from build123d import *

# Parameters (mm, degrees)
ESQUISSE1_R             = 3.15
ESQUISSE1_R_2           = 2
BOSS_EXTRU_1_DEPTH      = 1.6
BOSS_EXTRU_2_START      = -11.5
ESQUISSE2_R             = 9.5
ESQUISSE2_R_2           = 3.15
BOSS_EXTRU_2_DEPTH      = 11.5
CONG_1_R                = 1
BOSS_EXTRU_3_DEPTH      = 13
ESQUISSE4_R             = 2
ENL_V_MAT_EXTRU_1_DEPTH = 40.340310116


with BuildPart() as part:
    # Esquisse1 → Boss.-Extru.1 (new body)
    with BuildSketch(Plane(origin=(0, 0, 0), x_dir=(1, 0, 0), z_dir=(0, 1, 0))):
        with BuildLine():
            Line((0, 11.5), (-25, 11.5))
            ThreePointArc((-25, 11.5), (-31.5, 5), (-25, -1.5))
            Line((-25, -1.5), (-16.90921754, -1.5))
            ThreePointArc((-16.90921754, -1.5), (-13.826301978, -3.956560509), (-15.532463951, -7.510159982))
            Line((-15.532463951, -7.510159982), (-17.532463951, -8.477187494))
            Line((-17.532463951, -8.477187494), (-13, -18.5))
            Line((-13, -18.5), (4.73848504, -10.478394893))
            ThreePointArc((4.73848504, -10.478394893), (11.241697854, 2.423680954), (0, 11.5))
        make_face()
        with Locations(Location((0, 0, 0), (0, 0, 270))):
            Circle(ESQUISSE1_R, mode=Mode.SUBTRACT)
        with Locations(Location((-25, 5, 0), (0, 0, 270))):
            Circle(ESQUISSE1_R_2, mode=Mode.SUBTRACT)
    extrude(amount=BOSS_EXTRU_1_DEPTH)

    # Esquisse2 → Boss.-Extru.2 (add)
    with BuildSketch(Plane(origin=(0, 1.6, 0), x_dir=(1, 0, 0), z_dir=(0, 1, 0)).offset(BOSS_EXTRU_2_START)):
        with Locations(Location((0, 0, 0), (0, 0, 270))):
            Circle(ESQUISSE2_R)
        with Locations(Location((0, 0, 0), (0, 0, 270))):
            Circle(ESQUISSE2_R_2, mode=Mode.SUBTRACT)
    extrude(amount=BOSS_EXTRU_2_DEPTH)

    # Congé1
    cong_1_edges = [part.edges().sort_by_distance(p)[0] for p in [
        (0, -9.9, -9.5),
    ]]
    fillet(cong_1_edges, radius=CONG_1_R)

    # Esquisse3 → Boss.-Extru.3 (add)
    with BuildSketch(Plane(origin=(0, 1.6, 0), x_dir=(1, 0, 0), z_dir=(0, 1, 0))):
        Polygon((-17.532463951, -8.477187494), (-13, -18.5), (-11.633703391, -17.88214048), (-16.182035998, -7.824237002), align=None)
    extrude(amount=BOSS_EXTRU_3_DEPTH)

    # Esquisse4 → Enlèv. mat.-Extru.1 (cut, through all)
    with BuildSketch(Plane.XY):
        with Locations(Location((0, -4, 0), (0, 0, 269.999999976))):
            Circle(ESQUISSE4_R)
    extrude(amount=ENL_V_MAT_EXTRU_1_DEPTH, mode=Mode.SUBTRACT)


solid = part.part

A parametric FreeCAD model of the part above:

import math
import FreeCAD as App
import Part
import Sketcher

V = App.Vector


def edges_at(feature, points):
    """Names of the edges that pass closest to the given points."""
    edges = feature.Shape.Edges
    near = lambda p: min(range(len(edges)), key=lambda i: edges[i].distToShape(Part.Vertex(*p))[0])
    return sorted({f"Edge{near(p) + 1}" for p in points})

doc = App.newDocument("Part")
params = doc.addObject("Spreadsheet::Sheet", "Params")
for row, (alias, value) in enumerate([
    ("sketch1_diameter", "4 mm"),
    ("sketch1_diameter2", "6.3 mm"),
    ("sketch1_radius", "6.5 mm"),
    ("sketch1_radius2", "11.5 mm"),
    ("sketch1_width", "25 mm"),
    ("pad1_length", "1.6 mm"),
    ("sketch2_diameter", "19 mm"),
    ("sketch2_diameter2", "6.3 mm"),
    ("pad2_length", "11.5 mm"),
    ("fillet_radius", "1 mm"),
    ("sketch3_length", "11 mm"),
    ("sketch3_length2", "1.5 mm"),
    ("pad3_length", "13 mm"),
    ("sketch4_diameter", "4 mm"),
], start=1):
    params.set(f"A{row}", alias)
    params.set(f"B{row}", "=" + value)
    params.setAlias(f"B{row}", alias)

body = doc.addObject("PartDesign::Body", "Body")

# Sketch on XZ plane
sketch1 = body.newObject("Sketcher::SketchObject", "Sketch")
sketch1.AttachmentSupport = (doc.getObject("XZ_Plane"), [""])
sketch1.MapMode = "FlatFace"
sketch1.addGeometry(Part.LineSegment(V(0, -11.5, 0), V(-25, -11.5, 0)), False)
sketch1.addGeometry(Part.ArcOfCircle(Part.Circle(V(-25, -5, 0), V(0, 0, 1), 6.5), math.radians(90), math.radians(270)), False)
sketch1.addGeometry(Part.LineSegment(V(-25, 1.5, 0), V(-16.9, 1.5, 0)), False)
sketch1.addGeometry(Part.ArcOfCircle(Part.Circle(V(-16.9, 4.7, 0), V(0, 0, 1), 3.2), math.radians(-90), math.radians(64)), False)
sketch1.addGeometry(Part.LineSegment(V(-15.5, 7.5, 0), V(-17.5, 8.5, 0)), False)
sketch1.addGeometry(Part.LineSegment(V(-17.5, 8.5, 0), V(-13, 18.5, 0)), False)
sketch1.addGeometry(Part.LineSegment(V(-13, 18.5, 0), V(4.7, 10.5, 0)), False)
sketch1.addGeometry(Part.ArcOfCircle(Part.Circle(V(0, 0, 0), V(0, 0, 1), 11.5), math.radians(-90), math.radians(66)), False)
sketch1.addGeometry(Part.Circle(V(0, 0, 0), V(0, 0, 1), 3.1), False)
sketch1.addGeometry(Part.Circle(V(-25, -5, 0), V(0, 0, 1), 2), False)
sketch1.addConstraint(Sketcher.Constraint("Tangent", 0, 2, 1, 2))
sketch1.addConstraint(Sketcher.Constraint("Tangent", 1, 1, 2, 1))
sketch1.addConstraint(Sketcher.Constraint("Tangent", 2, 2, 3, 1))
sketch1.addConstraint(Sketcher.Constraint("Tangent", 3, 2, 4, 1))
sketch1.addConstraint(Sketcher.Constraint("Coincident", 4, 2, 5, 1))
sketch1.addConstraint(Sketcher.Constraint("Coincident", 5, 2, 6, 1))
sketch1.addConstraint(Sketcher.Constraint("Tangent", 6, 2, 7, 2))
sketch1.addConstraint(Sketcher.Constraint("Tangent", 7, 1, 0, 1))
sketch1.addConstraint(Sketcher.Constraint("Horizontal", 0))
sketch1.addConstraint(Sketcher.Constraint("Horizontal", 2))
sketch1.addConstraint(Sketcher.Constraint("Coincident", 7, 3, -1, 1))
sketch1.addConstraint(Sketcher.Constraint("Coincident", 8, 3, -1, 1))
sketch1.addConstraint(Sketcher.Constraint("Coincident", 9, 3, 1, 3))
sketch1.addConstraint(Sketcher.Constraint("Perpendicular", 5, 6))
sketch1.addConstraint(Sketcher.Constraint("Diameter", 9, 4.0))
sketch1.addConstraint(Sketcher.Constraint("Diameter", 8, 6.3))
sketch1.addConstraint(Sketcher.Constraint("Radius", 1, 6.5))
sketch1.addConstraint(Sketcher.Constraint("Radius", 7, 11.5))
sketch1.addConstraint(Sketcher.Constraint("DistanceX", 0, 2, 0, 1, 25.0))
sketch1.addConstraint(Sketcher.Constraint("Distance", 5, 11.0))
sketch1.addConstraint(Sketcher.Constraint("DistanceX", 5, 2, -1, 1, 13.0))
sketch1.addConstraint(Sketcher.Constraint("DistanceX", 4, 2, 3, 2, 2.0))
sketch1.addConstraint(Sketcher.Constraint("DistanceY", 2, 2, 5, 2, 17.0))
sketch1.addConstraint(Sketcher.Constraint("Radius", 3, 3.162767))
sketch1.setExpression("Constraints[14]", "Params.sketch1_diameter")
sketch1.setExpression("Constraints[15]", "Params.sketch1_diameter2")
sketch1.setExpression("Constraints[16]", "Params.sketch1_radius")
sketch1.setExpression("Constraints[17]", "Params.sketch1_radius2")
sketch1.setExpression("Constraints[18]", "Params.sketch1_width")
pad1 = body.newObject("PartDesign::Pad", "Pad")
pad1.Profile = sketch1
pad1.setExpression("Length", "Params.pad1_length")
pad1.Reversed = True

# Sketch on XZ plane
sketch2 = body.newObject("Sketcher::SketchObject", "Sketch001")
sketch2.AttachmentSupport = (doc.getObject("XZ_Plane"), [""])
sketch2.MapMode = "FlatFace"
sketch2.AttachmentOffset = App.Placement(V(0, 0, 9.9), App.Rotation())
sketch2.addGeometry(Part.Circle(V(0, 0, 0), V(0, 0, 1), 9.5), False)
sketch2.addGeometry(Part.Circle(V(0, 0, 0), V(0, 0, 1), 3.1), False)
sketch2.addConstraint(Sketcher.Constraint("Coincident", 0, 3, -1, 1))
sketch2.addConstraint(Sketcher.Constraint("Coincident", 1, 3, -1, 1))
sketch2.addConstraint(Sketcher.Constraint("Diameter", 0, 19.0))
sketch2.addConstraint(Sketcher.Constraint("Diameter", 1, 6.3))
sketch2.setExpression("Constraints[2]", "Params.sketch2_diameter")
sketch2.setExpression("Constraints[3]", "Params.sketch2_diameter2")
pad2 = body.newObject("PartDesign::Pad", "Pad001")
pad2.Profile = sketch2
pad2.setExpression("Length", "Params.pad2_length")
pad2.Reversed = True
doc.recompute()

fillet = body.newObject("PartDesign::Fillet", "Fillet")
fillet.Base = (pad2, edges_at(pad2, [(0, -9.9, -9.5)]))
fillet.setExpression("Radius", "Params.fillet_radius")

# Sketch on XZ plane
sketch3 = body.newObject("Sketcher::SketchObject", "Sketch002")
sketch3.AttachmentSupport = (doc.getObject("XZ_Plane"), [""])
sketch3.MapMode = "FlatFace"
sketch3.AttachmentOffset = App.Placement(V(0, 0, -1.6), App.Rotation())
sketch3.addGeometry(Part.LineSegment(V(-17.5, 8.5, 0), V(-13, 18.5, 0)), False)
sketch3.addGeometry(Part.LineSegment(V(-13, 18.5, 0), V(-11.6, 17.9, 0)), False)
sketch3.addGeometry(Part.LineSegment(V(-11.6, 17.9, 0), V(-16.2, 7.8, 0)), False)
sketch3.addGeometry(Part.LineSegment(V(-16.2, 7.8, 0), V(-17.5, 8.5, 0)), False)
sketch3.addConstraint(Sketcher.Constraint("Coincident", 0, 2, 1, 1))
sketch3.addConstraint(Sketcher.Constraint("Coincident", 1, 2, 2, 1))
sketch3.addConstraint(Sketcher.Constraint("Coincident", 2, 2, 3, 1))
sketch3.addConstraint(Sketcher.Constraint("Coincident", 3, 2, 0, 1))
sketch3.addConstraint(Sketcher.Constraint("Perpendicular", 0, 1))
sketch3.addConstraint(Sketcher.Constraint("Perpendicular", 1, 2))
sketch3.addConstraint(Sketcher.Constraint("Distance", 0, 11.0))
sketch3.addConstraint(Sketcher.Constraint("DistanceX", 0, 2, -1, 1, 13.0))
sketch3.addConstraint(Sketcher.Constraint("Distance", 3, 1.5))
sketch3.addConstraint(Sketcher.Constraint("DistanceY", -1, 1, 0, 2, 18.5))
sketch3.addConstraint(Sketcher.Constraint("DistanceY", -1, 1, 1, 2, 17.88214))
sketch3.addConstraint(Sketcher.Constraint("DistanceY", 2, 2, 3, 2, 0.65295))
sketch3.setExpression("Constraints[6]", "Params.sketch3_length")
sketch3.setExpression("Constraints[8]", "Params.sketch3_length2")
pad3 = body.newObject("PartDesign::Pad", "Pad002")
pad3.Profile = sketch3
pad3.setExpression("Length", "Params.pad3_length")
pad3.Reversed = True

# Sketch on XY plane
sketch4 = body.newObject("Sketcher::SketchObject", "Sketch003")
sketch4.AttachmentSupport = (doc.getObject("XY_Plane"), [""])
sketch4.MapMode = "FlatFace"
sketch4.addGeometry(Part.Circle(V(0, -4, 0), V(0, 0, 1), 2), False)
sketch4.addConstraint(Sketcher.Constraint("PointOnObject", 0, 3, -2))
sketch4.addConstraint(Sketcher.Constraint("Diameter", 0, 4.0))
sketch4.addConstraint(Sketcher.Constraint("DistanceY", 0, 3, -1, 1, 4.0))
sketch4.setExpression("Constraints[1]", "Params.sketch4_diameter")
pocket1 = body.newObject("PartDesign::Pocket", "Pocket")
pocket1.Profile = sketch4
pocket1.Type = "ThroughAll"
pocket1.Reversed = True

doc.recompute()
